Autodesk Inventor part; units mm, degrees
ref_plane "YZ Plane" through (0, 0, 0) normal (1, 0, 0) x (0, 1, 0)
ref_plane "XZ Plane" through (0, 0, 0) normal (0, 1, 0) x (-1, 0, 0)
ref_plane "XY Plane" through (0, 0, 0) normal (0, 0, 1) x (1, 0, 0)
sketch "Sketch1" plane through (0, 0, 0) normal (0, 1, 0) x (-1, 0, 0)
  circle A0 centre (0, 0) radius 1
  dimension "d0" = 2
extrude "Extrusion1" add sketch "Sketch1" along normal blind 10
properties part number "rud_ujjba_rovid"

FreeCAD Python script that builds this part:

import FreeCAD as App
import Part
import Sketcher
from FreeCAD import Vector

doc = App.newDocument("Part")
params = doc.addObject("Spreadsheet::Sheet", "Params")
for row, (alias, value) in enumerate([
    ("sketch1_diameter", "2 mm"),
    ("pad1_length", "10 mm"),
], start=1):
    params.set(f"A{row}", alias)
    params.set(f"B{row}", "=" + value)
    params.setAlias(f"B{row}", alias)

body = doc.addObject("PartDesign::Body", "Body")

# Sketch on XZ plane
sketch1 = body.newObject("Sketcher::SketchObject", "Sketch")
sketch1.AttachmentSupport = (doc.getObject("XZ_Plane"), [""])
sketch1.MapMode = "FlatFace"
sketch1.addGeometry(Part.Circle(Vector(0, 0, 0), Vector(0, 0, 1), 1), False)
sketch1.addConstraint([
    Sketcher.Constraint("Coincident", 0, 3, -1, 1),
    Sketcher.Constraint("Diameter", 0, 2.0),
])
sketch1.setExpression("Constraints[1]", "Params.sketch1_diameter")
pad1 = body.newObject("PartDesign::Pad", "Pad")
pad1.Profile = sketch1
pad1.setExpression("Length", "Params.pad1_length")
pad1.Reversed = True

doc.recompute()
